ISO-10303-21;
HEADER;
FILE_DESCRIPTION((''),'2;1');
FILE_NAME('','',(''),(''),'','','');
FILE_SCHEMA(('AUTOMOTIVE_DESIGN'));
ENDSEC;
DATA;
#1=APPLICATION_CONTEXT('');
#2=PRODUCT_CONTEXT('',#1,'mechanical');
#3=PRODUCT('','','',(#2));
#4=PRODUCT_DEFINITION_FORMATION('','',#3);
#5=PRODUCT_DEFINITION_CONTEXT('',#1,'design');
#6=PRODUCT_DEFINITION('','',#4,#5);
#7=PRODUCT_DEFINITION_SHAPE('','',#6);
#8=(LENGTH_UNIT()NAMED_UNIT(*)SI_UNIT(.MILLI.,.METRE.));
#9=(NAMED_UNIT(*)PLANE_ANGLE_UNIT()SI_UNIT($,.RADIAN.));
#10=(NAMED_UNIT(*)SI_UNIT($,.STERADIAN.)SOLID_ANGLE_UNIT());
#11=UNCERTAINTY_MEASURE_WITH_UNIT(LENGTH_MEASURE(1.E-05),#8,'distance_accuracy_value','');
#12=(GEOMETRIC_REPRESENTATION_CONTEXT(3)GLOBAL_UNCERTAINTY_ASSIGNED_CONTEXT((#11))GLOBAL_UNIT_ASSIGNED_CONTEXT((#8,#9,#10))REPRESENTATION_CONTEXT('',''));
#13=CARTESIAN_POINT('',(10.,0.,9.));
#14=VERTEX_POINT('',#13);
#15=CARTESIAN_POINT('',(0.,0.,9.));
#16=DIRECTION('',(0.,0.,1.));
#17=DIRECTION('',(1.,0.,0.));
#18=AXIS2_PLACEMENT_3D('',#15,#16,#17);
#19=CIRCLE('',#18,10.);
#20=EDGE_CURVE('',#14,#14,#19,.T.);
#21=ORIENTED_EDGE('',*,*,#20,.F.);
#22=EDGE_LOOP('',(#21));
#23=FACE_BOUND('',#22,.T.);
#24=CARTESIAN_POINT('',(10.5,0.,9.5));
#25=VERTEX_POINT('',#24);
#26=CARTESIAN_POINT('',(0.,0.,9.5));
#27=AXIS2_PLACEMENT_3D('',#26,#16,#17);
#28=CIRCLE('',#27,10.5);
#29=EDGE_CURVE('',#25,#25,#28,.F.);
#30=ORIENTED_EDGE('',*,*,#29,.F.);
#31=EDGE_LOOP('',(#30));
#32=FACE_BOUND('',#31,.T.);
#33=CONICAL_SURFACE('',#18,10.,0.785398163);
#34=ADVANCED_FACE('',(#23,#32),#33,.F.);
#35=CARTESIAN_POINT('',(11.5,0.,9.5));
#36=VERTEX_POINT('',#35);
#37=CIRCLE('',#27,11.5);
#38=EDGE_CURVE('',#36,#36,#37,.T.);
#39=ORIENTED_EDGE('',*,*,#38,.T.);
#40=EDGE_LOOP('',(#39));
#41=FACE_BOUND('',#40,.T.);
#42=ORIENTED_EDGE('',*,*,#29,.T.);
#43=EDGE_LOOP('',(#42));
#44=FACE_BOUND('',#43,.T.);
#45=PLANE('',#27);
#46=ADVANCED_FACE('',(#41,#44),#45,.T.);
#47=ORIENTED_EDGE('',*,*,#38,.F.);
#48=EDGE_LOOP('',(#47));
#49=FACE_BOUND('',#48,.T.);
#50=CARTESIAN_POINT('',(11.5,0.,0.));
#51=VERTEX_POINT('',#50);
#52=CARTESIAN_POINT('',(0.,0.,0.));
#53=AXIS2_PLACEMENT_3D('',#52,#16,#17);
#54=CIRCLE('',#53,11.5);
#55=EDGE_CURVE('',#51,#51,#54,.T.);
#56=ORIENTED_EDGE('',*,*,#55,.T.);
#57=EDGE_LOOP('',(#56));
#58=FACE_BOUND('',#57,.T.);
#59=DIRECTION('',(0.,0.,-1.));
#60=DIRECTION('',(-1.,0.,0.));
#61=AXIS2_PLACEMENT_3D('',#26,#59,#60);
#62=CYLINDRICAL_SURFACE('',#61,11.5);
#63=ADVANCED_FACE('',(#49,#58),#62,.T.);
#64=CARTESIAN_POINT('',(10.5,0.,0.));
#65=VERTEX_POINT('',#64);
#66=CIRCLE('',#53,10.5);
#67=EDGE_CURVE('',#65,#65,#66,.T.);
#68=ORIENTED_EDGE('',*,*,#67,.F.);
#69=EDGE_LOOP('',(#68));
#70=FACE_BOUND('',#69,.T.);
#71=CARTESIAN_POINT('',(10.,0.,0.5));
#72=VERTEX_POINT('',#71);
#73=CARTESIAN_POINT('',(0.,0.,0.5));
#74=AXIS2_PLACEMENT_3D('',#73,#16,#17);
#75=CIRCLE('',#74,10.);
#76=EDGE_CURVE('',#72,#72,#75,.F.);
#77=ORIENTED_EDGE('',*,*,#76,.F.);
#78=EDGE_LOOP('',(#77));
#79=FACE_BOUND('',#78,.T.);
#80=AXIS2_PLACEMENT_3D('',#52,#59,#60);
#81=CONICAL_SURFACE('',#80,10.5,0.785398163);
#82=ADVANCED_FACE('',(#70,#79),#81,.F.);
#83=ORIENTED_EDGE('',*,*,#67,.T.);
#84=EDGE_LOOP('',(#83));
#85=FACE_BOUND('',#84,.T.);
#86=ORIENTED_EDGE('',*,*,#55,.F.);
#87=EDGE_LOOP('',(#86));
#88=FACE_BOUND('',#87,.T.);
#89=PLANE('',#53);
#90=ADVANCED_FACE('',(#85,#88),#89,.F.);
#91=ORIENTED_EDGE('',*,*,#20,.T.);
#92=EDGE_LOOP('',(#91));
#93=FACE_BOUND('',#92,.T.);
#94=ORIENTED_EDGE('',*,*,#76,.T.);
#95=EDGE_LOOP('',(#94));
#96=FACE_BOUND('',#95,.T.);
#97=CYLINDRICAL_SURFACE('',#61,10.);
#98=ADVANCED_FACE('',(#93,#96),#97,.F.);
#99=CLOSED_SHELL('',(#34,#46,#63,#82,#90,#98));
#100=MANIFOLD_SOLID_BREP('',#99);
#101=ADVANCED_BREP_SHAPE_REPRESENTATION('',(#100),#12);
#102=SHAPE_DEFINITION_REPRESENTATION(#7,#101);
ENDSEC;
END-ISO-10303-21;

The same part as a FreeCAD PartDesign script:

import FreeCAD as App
import Part
import Sketcher


def edges_at(feature, points):
    """Names of the edges that pass closest to the given points."""
    edges = feature.Shape.Edges
    near = lambda p: min(range(len(edges)), key=lambda i: edges[i].distToShape(Part.Vertex(*p))[0])
    return sorted({f"Edge{near(p) + 1}" for p in points})

doc = App.newDocument("Part")
params = doc.addObject("Spreadsheet::Sheet", "Params")
for row, (alias, value) in enumerate([
    ("sketch1_diameter", "23 mm"),
    ("sketch1_diameter2", "20 mm"),
    ("pad1_length", "9.5 mm"),
    ("chamfer_size", "0.5 mm"),
], start=1):
    params.set(f"A{row}", alias)
    params.set(f"B{row}", "=" + value)
    params.setAlias(f"B{row}", alias)

body = doc.addObject("PartDesign::Body", "Body")

# Sketch on XY plane
sketch1 = body.newObject("Sketcher::SketchObject", "Sketch")
sketch1.AttachmentSupport = (doc.getObject("XY_Plane"), [""])
sketch1.MapMode = "FlatFace"
sketch1.addGeometry([
    Part.Circle(App.Vector(0, 0, 0), App.Vector(0, 0, 1), 12),
    Part.Circle(App.Vector(0, 0, 0), App.Vector(0, 0, 1), 10),
], False)
sketch1.addConstraint([
    Sketcher.Constraint("Coincident", 0, 3, -1, 1),
    Sketcher.Constraint("Coincident", 1, 3, -1, 1),
    Sketcher.Constraint("Diameter", 0, 23.0),
    Sketcher.Constraint("Diameter", 1, 20.0),
])
sketch1.setExpression("Constraints[2]", "Params.sketch1_diameter")
sketch1.setExpression("Constraints[3]", "Params.sketch1_diameter2")
pad1 = body.newObject("PartDesign::Pad", "Pad")
pad1.Profile = sketch1
pad1.setExpression("Length", "Params.pad1_length")
doc.recompute()

chamfer = body.newObject("PartDesign::Chamfer", "Chamfer")
chamfer.Base = (pad1, edges_at(pad1, [(-10, 0, 0), (-10, 0, 9.5)]))
chamfer.setExpression("Size", "Params.chamfer_size")

doc.recompute()
